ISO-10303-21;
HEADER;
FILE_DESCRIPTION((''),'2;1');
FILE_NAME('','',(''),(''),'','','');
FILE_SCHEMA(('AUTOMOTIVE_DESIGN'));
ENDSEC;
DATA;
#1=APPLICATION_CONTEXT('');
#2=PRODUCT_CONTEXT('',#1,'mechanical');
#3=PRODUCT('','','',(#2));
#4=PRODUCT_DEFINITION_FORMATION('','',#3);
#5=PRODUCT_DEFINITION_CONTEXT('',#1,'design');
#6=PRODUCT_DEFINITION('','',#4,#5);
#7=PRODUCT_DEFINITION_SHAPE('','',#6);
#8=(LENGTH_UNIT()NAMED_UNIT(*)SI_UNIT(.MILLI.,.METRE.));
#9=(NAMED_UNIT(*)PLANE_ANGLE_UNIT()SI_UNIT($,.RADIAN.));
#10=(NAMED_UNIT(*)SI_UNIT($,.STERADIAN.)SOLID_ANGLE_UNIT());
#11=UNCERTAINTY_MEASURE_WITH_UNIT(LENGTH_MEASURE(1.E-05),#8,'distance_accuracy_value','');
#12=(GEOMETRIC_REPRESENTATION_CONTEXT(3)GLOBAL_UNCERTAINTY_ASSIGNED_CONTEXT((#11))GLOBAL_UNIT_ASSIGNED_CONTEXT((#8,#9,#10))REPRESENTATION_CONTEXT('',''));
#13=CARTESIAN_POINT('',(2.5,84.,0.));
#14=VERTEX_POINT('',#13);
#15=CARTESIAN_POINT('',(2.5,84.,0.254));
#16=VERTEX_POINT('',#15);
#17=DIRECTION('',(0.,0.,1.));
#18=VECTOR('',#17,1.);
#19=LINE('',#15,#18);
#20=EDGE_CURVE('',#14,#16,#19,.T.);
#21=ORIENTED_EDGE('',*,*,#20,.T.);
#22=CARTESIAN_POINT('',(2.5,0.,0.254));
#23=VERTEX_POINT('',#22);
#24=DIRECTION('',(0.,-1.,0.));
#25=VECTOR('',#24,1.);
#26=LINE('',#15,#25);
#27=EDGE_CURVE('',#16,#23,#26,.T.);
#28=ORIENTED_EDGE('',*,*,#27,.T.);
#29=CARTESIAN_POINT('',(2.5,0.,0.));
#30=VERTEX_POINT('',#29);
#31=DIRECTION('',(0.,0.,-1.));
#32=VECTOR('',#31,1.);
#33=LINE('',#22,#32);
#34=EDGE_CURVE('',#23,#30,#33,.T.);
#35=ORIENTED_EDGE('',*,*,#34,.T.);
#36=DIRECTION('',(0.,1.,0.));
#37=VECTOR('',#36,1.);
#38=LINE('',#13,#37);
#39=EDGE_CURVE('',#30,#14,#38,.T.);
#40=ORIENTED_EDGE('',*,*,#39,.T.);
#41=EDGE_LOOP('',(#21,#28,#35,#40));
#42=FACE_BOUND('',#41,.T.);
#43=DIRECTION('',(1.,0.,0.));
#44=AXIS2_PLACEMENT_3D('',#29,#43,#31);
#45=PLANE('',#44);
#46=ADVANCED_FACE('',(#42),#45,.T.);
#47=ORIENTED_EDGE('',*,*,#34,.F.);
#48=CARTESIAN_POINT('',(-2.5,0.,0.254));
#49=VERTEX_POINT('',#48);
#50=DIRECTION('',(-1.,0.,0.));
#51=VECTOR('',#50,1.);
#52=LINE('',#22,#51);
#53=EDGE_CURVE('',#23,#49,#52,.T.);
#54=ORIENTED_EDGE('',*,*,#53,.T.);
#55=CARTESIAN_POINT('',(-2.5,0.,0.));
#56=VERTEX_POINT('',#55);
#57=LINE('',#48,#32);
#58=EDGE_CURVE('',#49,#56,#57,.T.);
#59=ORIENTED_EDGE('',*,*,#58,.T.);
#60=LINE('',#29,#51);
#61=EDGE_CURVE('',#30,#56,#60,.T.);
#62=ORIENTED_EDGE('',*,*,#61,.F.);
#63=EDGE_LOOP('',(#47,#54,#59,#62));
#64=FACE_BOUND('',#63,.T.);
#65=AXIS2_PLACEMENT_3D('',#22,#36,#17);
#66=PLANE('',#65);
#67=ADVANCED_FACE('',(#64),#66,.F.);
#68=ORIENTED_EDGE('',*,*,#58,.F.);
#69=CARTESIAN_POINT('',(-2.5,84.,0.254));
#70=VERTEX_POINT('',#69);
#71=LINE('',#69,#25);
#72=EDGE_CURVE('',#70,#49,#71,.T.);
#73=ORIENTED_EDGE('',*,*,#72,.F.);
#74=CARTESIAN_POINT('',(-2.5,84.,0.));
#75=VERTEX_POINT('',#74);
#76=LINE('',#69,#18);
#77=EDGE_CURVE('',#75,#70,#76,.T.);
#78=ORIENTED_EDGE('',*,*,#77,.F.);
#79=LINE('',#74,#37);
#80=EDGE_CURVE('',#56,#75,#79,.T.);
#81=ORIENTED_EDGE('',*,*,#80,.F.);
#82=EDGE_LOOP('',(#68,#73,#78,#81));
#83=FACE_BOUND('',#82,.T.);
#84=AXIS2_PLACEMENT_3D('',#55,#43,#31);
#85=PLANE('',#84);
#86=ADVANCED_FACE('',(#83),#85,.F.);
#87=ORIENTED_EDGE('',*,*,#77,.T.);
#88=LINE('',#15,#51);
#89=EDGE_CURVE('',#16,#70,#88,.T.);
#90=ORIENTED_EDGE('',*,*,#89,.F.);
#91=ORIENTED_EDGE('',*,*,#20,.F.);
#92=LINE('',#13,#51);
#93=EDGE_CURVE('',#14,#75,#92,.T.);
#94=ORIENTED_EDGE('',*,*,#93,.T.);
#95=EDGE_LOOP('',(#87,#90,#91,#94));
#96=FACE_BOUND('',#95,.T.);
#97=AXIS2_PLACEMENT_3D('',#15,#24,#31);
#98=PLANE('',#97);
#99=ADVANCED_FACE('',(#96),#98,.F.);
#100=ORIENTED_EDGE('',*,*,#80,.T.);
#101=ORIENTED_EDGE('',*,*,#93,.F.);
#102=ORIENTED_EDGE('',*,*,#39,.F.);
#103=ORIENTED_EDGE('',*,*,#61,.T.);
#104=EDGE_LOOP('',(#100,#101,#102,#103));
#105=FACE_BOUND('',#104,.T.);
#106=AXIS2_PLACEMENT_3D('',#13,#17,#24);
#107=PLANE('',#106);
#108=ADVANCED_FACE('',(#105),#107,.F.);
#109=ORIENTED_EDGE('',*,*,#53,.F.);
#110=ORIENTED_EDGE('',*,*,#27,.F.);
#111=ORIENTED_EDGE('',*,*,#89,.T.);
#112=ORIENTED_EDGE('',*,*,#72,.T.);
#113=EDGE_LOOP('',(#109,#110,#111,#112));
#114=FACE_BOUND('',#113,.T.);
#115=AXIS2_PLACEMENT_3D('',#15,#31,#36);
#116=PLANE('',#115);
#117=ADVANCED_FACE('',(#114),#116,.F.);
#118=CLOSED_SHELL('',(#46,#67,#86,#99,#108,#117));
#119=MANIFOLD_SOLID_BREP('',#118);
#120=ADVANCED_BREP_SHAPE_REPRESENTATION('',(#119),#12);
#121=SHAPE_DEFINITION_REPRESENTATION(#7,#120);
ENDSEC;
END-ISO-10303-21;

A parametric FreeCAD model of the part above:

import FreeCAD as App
import Part
import Sketcher

V = App.Vector


def add_polygon(sketch, points):
    """Adds a closed chain of lines whose ends are joined by coincident constraints."""
    first, n = sketch.GeometryCount, len(points)
    for a, b in zip(points, points[1:] + points[:1]):
        sketch.addGeometry(Part.LineSegment(App.Vector(*a, 0), App.Vector(*b, 0)), False)
    for i in range(n):
        sketch.addConstraint(Sketcher.Constraint("Coincident", first + i, 2, first + (i + 1) % n, 1))

doc = App.newDocument("Part")
params = doc.addObject("Spreadsheet::Sheet", "Params")
for row, (alias, value) in enumerate([
    ("sketch1_width", "84 mm"),
    ("pad1_length", "5 mm"),
], start=1):
    params.set(f"A{row}", alias)
    params.set(f"B{row}", "=" + value)
    params.setAlias(f"B{row}", alias)

body = doc.addObject("PartDesign::Body", "Body")

# Sketch on YZ plane
sketch1 = body.newObject("Sketcher::SketchObject", "Sketch")
sketch1.AttachmentSupport = (doc.getObject("YZ_Plane"), [""])
sketch1.MapMode = "FlatFace"
add_polygon(sketch1, [(84, 0.254), (0, 0.254), (0, 0), (84, 0)])  # lines 0-3
sketch1.addConstraint([
    Sketcher.Constraint("Horizontal", 0),
    Sketcher.Constraint("Vertical", 1),
    Sketcher.Constraint("Horizontal", 2),
    Sketcher.Constraint("Vertical", 3),
    Sketcher.Constraint("Coincident", 1, 2, -1, 1),
    Sketcher.Constraint("DistanceX", 0, 2, 0, 1, 84.0),
    Sketcher.Constraint("DistanceY", 1, 2, 1, 1, 0.254),
])
sketch1.setExpression("Constraints[9]", "Params.sketch1_width")
pad1 = body.newObject("PartDesign::Pad", "Pad")
pad1.Profile = sketch1
pad1.setExpression("Length", "Params.pad1_length")
pad1.Midplane = True

doc.recompute()
